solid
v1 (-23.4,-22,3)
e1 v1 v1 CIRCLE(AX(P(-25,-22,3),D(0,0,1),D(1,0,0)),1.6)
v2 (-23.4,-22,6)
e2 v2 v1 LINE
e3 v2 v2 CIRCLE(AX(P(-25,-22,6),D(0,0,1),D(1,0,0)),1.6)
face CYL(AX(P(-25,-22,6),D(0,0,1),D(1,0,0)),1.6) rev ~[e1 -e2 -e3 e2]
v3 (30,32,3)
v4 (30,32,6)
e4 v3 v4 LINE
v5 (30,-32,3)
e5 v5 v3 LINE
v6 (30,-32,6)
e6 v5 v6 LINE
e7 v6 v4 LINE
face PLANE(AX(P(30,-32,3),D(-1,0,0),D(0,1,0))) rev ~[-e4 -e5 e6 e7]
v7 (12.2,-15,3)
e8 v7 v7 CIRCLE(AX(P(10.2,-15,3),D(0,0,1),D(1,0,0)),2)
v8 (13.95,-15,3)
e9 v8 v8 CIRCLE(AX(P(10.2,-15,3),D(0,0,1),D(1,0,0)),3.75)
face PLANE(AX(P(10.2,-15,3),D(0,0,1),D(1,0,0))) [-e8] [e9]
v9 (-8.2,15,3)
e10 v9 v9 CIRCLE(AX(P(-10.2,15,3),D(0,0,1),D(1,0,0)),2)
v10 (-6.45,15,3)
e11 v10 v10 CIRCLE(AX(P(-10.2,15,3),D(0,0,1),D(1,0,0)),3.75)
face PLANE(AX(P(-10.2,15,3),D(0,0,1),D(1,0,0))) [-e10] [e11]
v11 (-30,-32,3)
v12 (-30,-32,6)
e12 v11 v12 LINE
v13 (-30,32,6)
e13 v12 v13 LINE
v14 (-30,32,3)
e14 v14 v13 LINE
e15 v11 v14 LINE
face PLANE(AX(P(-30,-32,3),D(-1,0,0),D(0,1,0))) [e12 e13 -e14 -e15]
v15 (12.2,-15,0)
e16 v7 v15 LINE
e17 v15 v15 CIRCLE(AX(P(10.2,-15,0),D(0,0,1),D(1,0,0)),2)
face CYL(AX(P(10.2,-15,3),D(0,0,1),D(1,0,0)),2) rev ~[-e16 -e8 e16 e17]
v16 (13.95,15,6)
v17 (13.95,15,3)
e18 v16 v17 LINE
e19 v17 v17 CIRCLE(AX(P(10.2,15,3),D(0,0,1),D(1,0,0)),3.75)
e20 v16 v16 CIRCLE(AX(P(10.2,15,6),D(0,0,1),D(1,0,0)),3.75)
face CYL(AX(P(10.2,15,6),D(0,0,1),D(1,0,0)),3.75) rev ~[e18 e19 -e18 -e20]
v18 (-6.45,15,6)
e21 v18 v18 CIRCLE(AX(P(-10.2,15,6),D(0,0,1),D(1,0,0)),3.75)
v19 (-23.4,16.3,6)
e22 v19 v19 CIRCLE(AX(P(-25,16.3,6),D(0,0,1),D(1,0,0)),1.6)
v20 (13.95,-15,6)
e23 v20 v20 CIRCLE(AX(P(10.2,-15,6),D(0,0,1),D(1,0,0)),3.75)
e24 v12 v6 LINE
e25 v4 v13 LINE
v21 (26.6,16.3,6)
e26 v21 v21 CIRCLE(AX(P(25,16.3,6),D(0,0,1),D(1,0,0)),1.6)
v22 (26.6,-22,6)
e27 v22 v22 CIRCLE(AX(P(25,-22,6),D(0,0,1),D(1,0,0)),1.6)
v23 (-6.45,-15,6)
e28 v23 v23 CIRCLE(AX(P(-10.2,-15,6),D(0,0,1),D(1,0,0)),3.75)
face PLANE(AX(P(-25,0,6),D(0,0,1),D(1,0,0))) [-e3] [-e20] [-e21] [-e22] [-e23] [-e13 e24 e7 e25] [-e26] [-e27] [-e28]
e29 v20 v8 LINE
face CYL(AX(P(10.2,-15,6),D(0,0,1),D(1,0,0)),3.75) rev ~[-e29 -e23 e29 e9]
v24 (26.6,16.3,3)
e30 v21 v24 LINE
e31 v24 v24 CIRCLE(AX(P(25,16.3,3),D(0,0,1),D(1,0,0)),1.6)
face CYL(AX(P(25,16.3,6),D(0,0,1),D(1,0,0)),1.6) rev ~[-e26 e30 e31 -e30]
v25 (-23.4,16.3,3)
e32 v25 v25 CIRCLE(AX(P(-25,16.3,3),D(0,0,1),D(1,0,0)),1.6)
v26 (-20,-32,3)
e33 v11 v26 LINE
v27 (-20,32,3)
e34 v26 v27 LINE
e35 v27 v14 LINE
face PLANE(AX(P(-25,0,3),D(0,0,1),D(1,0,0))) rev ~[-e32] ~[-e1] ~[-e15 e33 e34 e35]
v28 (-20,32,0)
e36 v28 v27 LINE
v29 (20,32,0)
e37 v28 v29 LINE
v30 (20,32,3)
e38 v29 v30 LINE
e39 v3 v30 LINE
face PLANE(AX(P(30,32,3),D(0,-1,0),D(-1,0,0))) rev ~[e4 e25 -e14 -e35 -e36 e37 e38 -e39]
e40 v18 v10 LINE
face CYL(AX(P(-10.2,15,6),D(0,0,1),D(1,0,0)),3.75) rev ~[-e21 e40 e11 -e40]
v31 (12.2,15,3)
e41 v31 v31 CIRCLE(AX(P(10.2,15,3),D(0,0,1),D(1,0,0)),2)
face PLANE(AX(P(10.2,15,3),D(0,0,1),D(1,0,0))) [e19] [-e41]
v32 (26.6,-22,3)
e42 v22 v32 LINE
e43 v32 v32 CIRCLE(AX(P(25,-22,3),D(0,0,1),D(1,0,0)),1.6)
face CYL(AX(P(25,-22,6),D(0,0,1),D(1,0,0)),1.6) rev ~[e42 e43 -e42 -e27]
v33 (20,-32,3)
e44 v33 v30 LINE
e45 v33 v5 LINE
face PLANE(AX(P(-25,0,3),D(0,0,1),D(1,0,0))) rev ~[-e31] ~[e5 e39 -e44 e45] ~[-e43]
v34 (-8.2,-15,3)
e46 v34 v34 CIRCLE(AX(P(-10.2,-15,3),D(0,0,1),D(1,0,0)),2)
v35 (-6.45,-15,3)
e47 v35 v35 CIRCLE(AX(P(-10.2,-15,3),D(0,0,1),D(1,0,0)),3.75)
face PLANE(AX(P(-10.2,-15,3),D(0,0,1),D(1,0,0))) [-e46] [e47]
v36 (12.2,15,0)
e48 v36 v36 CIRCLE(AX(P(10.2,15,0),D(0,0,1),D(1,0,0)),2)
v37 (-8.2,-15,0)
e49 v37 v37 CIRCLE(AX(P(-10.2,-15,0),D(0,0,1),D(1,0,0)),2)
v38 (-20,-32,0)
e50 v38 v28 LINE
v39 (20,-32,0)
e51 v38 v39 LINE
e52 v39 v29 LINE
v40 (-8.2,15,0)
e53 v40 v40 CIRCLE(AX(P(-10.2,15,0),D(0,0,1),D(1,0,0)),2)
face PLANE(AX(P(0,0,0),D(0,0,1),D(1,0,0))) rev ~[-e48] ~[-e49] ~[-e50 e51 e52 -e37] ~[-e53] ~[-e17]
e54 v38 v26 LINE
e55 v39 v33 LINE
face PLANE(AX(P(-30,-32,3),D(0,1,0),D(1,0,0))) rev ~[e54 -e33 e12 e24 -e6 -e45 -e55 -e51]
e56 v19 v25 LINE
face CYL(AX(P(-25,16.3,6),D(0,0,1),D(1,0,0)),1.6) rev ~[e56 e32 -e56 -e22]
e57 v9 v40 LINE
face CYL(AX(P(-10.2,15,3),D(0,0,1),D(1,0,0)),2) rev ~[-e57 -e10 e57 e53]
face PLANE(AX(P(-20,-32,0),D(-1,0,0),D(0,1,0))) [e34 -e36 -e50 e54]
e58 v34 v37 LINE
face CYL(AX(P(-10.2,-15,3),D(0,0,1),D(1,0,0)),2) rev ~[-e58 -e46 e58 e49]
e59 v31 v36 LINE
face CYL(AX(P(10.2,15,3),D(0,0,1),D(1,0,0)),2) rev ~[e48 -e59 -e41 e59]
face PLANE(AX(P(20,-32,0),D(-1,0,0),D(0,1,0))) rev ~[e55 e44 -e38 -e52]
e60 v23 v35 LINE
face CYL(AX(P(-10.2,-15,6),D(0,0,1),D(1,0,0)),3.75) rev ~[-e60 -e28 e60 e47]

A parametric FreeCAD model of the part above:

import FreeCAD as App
import Part
import Sketcher
from FreeCAD import Vector
Q = App.Units.Quantity


def add_polygon(sketch, points):
    """Adds a closed chain of lines whose ends are joined by coincident constraints."""
    first, n = sketch.GeometryCount, len(points)
    for a, b in zip(points, points[1:] + points[:1]):
        sketch.addGeometry(Part.LineSegment(App.Vector(*a, 0), App.Vector(*b, 0)), False)
    for i in range(n):
        sketch.addConstraint(Sketcher.Constraint("Coincident", first + i, 2, first + (i + 1) % n, 1))

doc = App.newDocument("Part")
body = doc.addObject("PartDesign::Body", "Body")

# Sketch on XY plane
sketch1 = body.newObject("Sketcher::SketchObject", "Sketch")
sketch1.AttachmentSupport = (doc.getObject("XY_Plane"), [""])
sketch1.MapMode = "FlatFace"
add_polygon(sketch1, [(-20, 32), (-20, -32), (20, -32), (20, 32)])  # lines 0-3
sketch1.addConstraint([
    Sketcher.Constraint("Vertical", 0),
    Sketcher.Constraint("Horizontal", 1),
    Sketcher.Constraint("Vertical", 2),
    Sketcher.Constraint("Horizontal", 3),
    Sketcher.Constraint("Symmetric", 0, 2, 2, 2, -1, 1),
    Sketcher.Constraint("DistanceX", 1, 1, 1, 2, Q("40 mm")),
    Sketcher.Constraint("DistanceY", 0, 2, 0, 1, Q("64 mm")),
])
pad1 = body.newObject("PartDesign::Pad", "Pad")
pad1.Profile = sketch1
pad1.Length = 3

# Sketch on XY plane
sketch2 = body.newObject("Sketcher::SketchObject", "Sketch001")
sketch2.AttachmentSupport = (doc.getObject("XY_Plane"), [""])
sketch2.MapMode = "FlatFace"
sketch2.AttachmentOffset = App.Placement(Vector(0, 0, 3), App.Rotation())
add_polygon(sketch2, [(-30, 32), (-30, -32), (30, -32), (30, 32)])  # lines 0-3
sketch2.addConstraint([
    Sketcher.Constraint("Vertical", 0),
    Sketcher.Constraint("Horizontal", 1),
    Sketcher.Constraint("Vertical", 2),
    Sketcher.Constraint("Horizontal", 3),
    Sketcher.Constraint("Symmetric", 0, 2, 2, 2, -1, 1),
    Sketcher.Constraint("DistanceX", 1, 1, 1, 2, Q("60 mm")),
    Sketcher.Constraint("DistanceY", 0, 2, 0, 1, Q("64 mm")),
])
pad2 = body.newObject("PartDesign::Pad", "Pad001")
pad2.Profile = sketch2
pad2.Length = 3

# Sketch on XY plane
sketch3 = body.newObject("Sketcher::SketchObject", "Sketch002")
sketch3.AttachmentSupport = (doc.getObject("XY_Plane"), [""])
sketch3.MapMode = "FlatFace"
sketch3.AttachmentOffset = App.Placement(Vector(0, 0, 6), App.Rotation())
sketch3.addGeometry(Part.Circle(Vector(-25, 16.3, 0), Vector(0, 0, 1), 1.6), False)
sketch3.addConstraint([
    Sketcher.Constraint("Diameter", 0, Q("3.2 mm")),
    Sketcher.Constraint("DistanceX", 0, 3, -1, 1, Q("25 mm")),
    Sketcher.Constraint("DistanceY", -1, 1, 0, 3, Q("16.3 mm")),
])
pocket1 = body.newObject("PartDesign::Pocket", "Pocket")
pocket1.Profile = sketch3
pocket1.Length = 25

# Sketch on XY plane
sketch4 = body.newObject("Sketcher::SketchObject", "Sketch003")
sketch4.AttachmentSupport = (doc.getObject("XY_Plane"), [""])
sketch4.MapMode = "FlatFace"
sketch4.AttachmentOffset = App.Placement(Vector(0, 0, 6), App.Rotation())
sketch4.addGeometry([
    Part.Circle(Vector(-25, -22, 0), Vector(0, 0, 1), 1.6),
    Part.Circle(Vector(25, -22, 0), Vector(0, 0, 1), 1.6),
    Part.Circle(Vector(25, 16.3, 0), Vector(0, 0, 1), 1.6),
], False)
sketch4.addConstraint([
    Sketcher.Constraint("Equal", 0, 1),
    Sketcher.Constraint("Equal", 1, 2),
    Sketcher.Constraint("Symmetric", 0, 3, 1, 3, -2),
    Sketcher.Constraint("Vertical", 1, 3, 2, 3),
    Sketcher.Constraint("Diameter", 0, Q("3.2 mm")),
    Sketcher.Constraint("DistanceX", 0, 3, -1, 1, Q("25 mm")),
    Sketcher.Constraint("DistanceY", 0, 3, -1, 1, Q("22 mm")),
    Sketcher.Constraint("DistanceY", -1, 1, 2, 3, Q("16.3 mm")),
])
pocket2 = body.newObject("PartDesign::Pocket", "Pocket001")
pocket2.Profile = sketch4
pocket2.Length = 25

# Sketch on XY plane
sketch5 = body.newObject("Sketcher::SketchObject", "Sketch004")
sketch5.AttachmentSupport = (doc.getObject("XY_Plane"), [""])
sketch5.MapMode = "FlatFace"
sketch5.AttachmentOffset = App.Placement(Vector(0, 0, 6), App.Rotation())
sketch5.addGeometry([
    Part.Circle(Vector(-10.2, -15, 0), Vector(0, 0, 1), 3.8),
    Part.Circle(Vector(10.2, -15, 0), Vector(0, 0, 1), 3.8),
    Part.Circle(Vector(10.2, 15, 0), Vector(0, 0, 1), 3.8),
    Part.Circle(Vector(-10.2, 15, 0), Vector(0, 0, 1), 3.8),
], False)
sketch5.addConstraint([
    Sketcher.Constraint("Equal", 0, 1),
    Sketcher.Constraint("Equal", 1, 2),
    Sketcher.Constraint("Equal", 2, 3),
    Sketcher.Constraint("Symmetric", 0, 3, 2, 3, -1, 1),
    Sketcher.Constraint("Symmetric", 1, 3, 3, 3, -1, 1),
    Sketcher.Constraint("Symmetric", 0, 3, 1, 3, -2),
    Sketcher.Constraint("Diameter", 0, Q("7.5 mm")),
    Sketcher.Constraint("DistanceY", 0, 3, -1, 1, Q("15 mm")),
    Sketcher.Constraint("DistanceX", 0, 3, -1, 1, Q("10.2 mm")),
])
pocket3 = body.newObject("PartDesign::Pocket", "Pocket002")
pocket3.Profile = sketch5
pocket3.Length = 3

# Sketch on XY plane
sketch6 = body.newObject("Sketcher::SketchObject", "Sketch005")
sketch6.AttachmentSupport = (doc.getObject("XY_Plane"), [""])
sketch6.MapMode = "FlatFace"
sketch6.AttachmentOffset = App.Placement(Vector(0, 0, 3), App.Rotation())
sketch6.addGeometry([
    Part.Circle(Vector(-10.2, -15, 0), Vector(0, 0, 1), 2),
    Part.Circle(Vector(-10.2, 15, 0), Vector(0, 0, 1), 2),
    Part.Circle(Vector(10.2, 15, 0), Vector(0, 0, 1), 2),
    Part.Circle(Vector(10.2, -15, 0), Vector(0, 0, 1), 2),
], False)
sketch6.addConstraint([
    Sketcher.Constraint("Equal", 0, 1),
    Sketcher.Constraint("Equal", 1, 2),
    Sketcher.Constraint("Equal", 2, 3),
    Sketcher.Constraint("Symmetric", 0, 3, 2, 3, -1, 1),
    Sketcher.Constraint("Symmetric", 1, 3, 3, 3, -1, 1),
    Sketcher.Constraint("Symmetric", 1, 3, 2, 3, -2),
    Sketcher.Constraint("Diameter", 0, Q("4 mm")),
    Sketcher.Constraint("DistanceY", 0, 3, -1, 1, Q("15 mm")),
    Sketcher.Constraint("DistanceX", 0, 3, -1, 1, Q("10.2 mm")),
])
pocket4 = body.newObject("PartDesign::Pocket", "Pocket003")
pocket4.Profile = sketch6
pocket4.Length = 25

doc.recompute()
